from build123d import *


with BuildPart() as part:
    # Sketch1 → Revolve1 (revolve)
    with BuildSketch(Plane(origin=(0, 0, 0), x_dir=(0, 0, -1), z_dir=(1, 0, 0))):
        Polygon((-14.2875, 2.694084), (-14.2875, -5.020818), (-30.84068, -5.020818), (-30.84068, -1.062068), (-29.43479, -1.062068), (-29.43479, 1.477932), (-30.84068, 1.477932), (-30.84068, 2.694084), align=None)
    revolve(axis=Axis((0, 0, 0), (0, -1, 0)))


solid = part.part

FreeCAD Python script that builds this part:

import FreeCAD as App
import Part
import Sketcher
Q = App.Units.Quantity


def add_polygon(sketch, points):
    """Adds a closed chain of lines whose ends are joined by coincident constraints."""
    first, n = sketch.GeometryCount, len(points)
    for a, b in zip(points, points[1:] + points[:1]):
        sketch.addGeometry(Part.LineSegment(App.Vector(*a, 0), App.Vector(*b, 0)), False)
    for i in range(n):
        sketch.addConstraint(Sketcher.Constraint("Coincident", first + i, 2, first + (i + 1) % n, 1))

doc = App.newDocument("Part")
body = doc.addObject("PartDesign::Body", "Body")

sketch1 = doc.addObject("Sketcher::SketchObject", "Sketch")
body.addObject(sketch1)
sketch1.AttachmentSupport = (doc.YZ_Plane, [""])
sketch1.MapMode = "FlatFace"
add_polygon(sketch1, [(-5, 14.3), (2.7, 14.3), (2.7, 30.8), (1.5, 30.8), (1.5, 29.4), (-1.1, 29.4), (-1.1, 30.8), (-5, 30.8)])
sketch1.addConstraint(Sketcher.Constraint("Horizontal", 0))
sketch1.addConstraint(Sketcher.Constraint("Vertical", 1))
sketch1.addConstraint(Sketcher.Constraint("Horizontal", 2))
sketch1.addConstraint(Sketcher.Constraint("Vertical", 3))
sketch1.addConstraint(Sketcher.Constraint("Horizontal", 4))
sketch1.addConstraint(Sketcher.Constraint("Vertical", 5))
sketch1.addConstraint(Sketcher.Constraint("Horizontal", 6))
sketch1.addConstraint(Sketcher.Constraint("Vertical", 7))
sketch1.addConstraint(Sketcher.Constraint("Horizontal", 2, 2, 5, 2))
sketch1.addConstraint(Sketcher.Constraint("DistanceX", 4, 2, 4, 1, Q("0.1 in")))
sketch1.addConstraint(Sketcher.Constraint("DistanceY", 1, 1, 1, 2, Q("0.6517 in")))
sketch1.addConstraint(Sketcher.Constraint("DistanceY", -1, 1, 0, 2, Q("0.5625 in")))
sketch1.addConstraint(Sketcher.Constraint("DistanceX", 6, 2, 6, 1, Q("3.95875 mm")))
sketch1.addConstraint(Sketcher.Constraint("DistanceY", 3, 2, 3, 1, Q("1.40589 mm")))
sketch1.addConstraint(Sketcher.Constraint("DistanceX", 0, 1, 0, 2, Q("7.714902 mm")))
sketch1.addConstraint(Sketcher.Constraint("DistanceX", 6, 2, -1, 1, Q("5.020818 mm")))
revolution = doc.addObject("PartDesign::Revolution", "Revolution")
body.addObject(revolution)
revolution.Profile = sketch1
revolution.ReferenceAxis = (sketch1, ["H_Axis"])
revolution.Angle = 360

doc.recompute()
